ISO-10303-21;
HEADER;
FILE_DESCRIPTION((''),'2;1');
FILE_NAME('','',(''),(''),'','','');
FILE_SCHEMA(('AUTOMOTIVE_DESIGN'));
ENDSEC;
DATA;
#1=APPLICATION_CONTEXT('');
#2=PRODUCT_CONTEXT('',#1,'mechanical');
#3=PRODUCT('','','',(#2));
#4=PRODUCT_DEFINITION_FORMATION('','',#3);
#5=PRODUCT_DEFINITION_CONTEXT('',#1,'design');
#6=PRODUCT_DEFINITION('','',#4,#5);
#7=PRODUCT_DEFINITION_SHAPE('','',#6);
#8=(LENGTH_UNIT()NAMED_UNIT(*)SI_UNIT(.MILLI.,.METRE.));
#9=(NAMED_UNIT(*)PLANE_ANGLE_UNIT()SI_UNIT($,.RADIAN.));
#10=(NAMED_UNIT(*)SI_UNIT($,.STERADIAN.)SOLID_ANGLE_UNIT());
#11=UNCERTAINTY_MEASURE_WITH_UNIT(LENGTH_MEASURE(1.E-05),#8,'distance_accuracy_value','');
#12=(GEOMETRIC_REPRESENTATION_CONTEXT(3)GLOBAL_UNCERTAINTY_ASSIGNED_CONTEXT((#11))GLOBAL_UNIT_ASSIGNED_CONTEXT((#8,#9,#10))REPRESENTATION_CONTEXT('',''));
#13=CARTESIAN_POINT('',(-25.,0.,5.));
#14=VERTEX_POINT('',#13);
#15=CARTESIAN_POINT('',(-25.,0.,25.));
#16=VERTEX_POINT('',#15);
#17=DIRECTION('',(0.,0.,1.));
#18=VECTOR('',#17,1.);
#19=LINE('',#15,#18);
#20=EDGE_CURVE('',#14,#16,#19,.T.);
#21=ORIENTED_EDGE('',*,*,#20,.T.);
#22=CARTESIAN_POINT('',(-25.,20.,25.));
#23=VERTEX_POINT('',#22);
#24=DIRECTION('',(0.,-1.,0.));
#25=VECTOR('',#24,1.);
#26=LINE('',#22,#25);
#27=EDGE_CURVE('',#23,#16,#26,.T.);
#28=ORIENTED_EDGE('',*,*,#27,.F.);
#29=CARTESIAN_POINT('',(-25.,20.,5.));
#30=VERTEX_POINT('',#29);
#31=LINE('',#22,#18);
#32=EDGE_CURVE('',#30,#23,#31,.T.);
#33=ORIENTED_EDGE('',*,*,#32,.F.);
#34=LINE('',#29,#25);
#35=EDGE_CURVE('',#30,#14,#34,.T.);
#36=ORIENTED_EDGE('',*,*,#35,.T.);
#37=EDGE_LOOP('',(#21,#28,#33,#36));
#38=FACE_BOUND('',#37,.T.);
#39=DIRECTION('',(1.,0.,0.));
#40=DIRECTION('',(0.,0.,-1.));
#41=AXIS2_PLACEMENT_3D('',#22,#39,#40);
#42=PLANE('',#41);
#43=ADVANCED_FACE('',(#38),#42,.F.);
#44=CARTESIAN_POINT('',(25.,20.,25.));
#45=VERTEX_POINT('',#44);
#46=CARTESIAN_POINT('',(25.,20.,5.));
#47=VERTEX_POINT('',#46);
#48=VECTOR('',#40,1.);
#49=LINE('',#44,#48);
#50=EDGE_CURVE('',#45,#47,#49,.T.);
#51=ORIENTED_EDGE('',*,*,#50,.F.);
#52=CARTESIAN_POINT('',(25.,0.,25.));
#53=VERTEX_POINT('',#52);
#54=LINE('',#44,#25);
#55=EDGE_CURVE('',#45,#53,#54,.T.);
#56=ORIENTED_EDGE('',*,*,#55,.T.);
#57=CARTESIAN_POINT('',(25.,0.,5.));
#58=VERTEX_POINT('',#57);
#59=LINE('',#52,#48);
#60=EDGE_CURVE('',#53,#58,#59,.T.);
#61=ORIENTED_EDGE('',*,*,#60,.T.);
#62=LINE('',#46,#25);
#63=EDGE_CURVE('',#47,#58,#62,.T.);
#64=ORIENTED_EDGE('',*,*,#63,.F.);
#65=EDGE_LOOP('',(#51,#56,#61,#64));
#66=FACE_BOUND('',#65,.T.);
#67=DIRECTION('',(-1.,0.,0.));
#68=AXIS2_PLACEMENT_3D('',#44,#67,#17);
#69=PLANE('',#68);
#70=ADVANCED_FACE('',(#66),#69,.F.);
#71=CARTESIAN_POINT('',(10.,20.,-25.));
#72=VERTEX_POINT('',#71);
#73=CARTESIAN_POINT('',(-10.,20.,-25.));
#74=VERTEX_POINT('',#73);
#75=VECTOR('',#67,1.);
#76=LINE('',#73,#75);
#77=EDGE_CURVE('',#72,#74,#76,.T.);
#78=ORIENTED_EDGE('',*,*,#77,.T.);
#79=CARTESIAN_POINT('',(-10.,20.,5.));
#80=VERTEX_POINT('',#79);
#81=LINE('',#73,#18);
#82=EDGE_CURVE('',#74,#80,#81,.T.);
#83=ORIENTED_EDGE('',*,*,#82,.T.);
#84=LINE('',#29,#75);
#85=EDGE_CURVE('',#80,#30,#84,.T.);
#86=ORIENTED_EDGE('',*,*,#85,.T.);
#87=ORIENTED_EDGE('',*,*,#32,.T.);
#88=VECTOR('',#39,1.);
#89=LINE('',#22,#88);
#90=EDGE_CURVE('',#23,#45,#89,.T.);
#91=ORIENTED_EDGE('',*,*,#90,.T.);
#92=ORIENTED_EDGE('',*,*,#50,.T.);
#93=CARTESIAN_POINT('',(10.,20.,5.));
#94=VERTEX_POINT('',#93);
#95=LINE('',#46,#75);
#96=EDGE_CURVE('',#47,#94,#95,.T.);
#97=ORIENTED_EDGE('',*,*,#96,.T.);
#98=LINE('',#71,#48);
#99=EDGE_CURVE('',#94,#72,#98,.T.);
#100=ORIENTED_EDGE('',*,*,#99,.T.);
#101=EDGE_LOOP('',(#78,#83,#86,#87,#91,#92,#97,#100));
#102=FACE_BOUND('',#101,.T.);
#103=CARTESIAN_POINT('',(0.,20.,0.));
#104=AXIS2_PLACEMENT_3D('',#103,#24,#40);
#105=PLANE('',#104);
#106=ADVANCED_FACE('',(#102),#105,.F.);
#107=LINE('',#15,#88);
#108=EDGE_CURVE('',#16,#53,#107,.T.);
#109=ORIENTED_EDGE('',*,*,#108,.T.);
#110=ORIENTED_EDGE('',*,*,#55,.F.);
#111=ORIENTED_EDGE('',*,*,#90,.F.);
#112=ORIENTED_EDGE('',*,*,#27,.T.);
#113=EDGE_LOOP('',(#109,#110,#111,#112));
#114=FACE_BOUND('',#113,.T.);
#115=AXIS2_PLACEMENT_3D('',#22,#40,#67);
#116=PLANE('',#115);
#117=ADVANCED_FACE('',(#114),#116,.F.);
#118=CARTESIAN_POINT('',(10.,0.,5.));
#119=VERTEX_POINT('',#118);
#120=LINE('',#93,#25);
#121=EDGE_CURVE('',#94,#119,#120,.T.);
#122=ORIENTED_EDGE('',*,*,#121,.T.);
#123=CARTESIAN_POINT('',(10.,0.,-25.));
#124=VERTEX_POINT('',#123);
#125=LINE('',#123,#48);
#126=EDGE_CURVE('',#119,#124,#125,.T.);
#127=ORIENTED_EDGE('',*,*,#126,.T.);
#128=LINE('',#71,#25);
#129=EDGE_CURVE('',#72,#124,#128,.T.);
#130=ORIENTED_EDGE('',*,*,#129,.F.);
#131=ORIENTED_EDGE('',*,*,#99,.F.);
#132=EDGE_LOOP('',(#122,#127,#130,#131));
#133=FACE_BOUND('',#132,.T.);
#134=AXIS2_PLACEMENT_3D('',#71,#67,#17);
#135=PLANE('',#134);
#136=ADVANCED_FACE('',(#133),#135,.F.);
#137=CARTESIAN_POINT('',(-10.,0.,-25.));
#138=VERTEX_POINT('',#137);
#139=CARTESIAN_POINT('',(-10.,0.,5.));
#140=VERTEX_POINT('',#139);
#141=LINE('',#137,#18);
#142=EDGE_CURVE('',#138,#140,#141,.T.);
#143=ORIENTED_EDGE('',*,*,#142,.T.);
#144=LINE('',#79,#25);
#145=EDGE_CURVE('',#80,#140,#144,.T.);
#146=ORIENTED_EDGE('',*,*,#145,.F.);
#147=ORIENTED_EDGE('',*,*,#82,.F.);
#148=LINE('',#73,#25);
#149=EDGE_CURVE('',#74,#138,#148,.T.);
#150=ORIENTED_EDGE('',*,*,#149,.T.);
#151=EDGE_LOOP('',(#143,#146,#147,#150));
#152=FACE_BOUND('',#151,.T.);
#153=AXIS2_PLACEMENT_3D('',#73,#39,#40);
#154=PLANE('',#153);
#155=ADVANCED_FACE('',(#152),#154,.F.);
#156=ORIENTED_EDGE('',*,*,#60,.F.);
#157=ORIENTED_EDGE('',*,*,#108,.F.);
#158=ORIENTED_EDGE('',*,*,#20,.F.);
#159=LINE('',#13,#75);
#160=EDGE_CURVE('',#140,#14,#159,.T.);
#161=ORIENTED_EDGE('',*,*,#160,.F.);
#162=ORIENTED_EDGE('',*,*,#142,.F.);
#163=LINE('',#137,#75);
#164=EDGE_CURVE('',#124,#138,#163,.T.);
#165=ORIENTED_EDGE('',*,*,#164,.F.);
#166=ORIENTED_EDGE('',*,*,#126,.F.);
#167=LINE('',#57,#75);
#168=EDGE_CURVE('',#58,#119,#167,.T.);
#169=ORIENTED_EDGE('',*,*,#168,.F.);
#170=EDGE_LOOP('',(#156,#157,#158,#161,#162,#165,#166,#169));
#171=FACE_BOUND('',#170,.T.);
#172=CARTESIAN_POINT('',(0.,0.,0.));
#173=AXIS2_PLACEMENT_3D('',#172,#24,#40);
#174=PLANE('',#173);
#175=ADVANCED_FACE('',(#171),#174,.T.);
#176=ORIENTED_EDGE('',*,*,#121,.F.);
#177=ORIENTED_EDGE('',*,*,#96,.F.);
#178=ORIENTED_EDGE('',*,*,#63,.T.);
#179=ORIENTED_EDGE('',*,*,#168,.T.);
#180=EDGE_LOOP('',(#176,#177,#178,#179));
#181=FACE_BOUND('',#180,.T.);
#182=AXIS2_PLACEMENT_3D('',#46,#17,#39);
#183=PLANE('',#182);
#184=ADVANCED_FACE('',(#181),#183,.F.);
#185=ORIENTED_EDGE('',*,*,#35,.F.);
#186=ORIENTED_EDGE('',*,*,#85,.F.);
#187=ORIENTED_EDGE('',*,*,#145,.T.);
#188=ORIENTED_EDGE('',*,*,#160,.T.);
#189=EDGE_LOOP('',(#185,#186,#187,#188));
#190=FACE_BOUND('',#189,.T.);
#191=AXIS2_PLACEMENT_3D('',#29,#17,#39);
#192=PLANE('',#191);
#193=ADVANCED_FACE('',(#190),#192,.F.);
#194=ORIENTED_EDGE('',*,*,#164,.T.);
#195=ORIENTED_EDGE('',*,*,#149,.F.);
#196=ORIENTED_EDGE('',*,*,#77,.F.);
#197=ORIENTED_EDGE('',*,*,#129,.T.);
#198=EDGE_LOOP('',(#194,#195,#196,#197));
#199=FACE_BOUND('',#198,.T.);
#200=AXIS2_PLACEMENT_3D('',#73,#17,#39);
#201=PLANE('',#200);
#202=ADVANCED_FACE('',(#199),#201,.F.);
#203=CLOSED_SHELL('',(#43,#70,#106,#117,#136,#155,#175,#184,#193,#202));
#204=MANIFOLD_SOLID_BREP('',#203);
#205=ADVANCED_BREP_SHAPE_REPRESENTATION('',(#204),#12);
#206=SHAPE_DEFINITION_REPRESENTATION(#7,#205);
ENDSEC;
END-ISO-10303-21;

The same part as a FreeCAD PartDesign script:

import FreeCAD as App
import Part
import Sketcher


def add_polygon(sketch, points):
    """Adds a closed chain of lines whose ends are joined by coincident constraints."""
    first, n = sketch.GeometryCount, len(points)
    for a, b in zip(points, points[1:] + points[:1]):
        sketch.addGeometry(Part.LineSegment(App.Vector(*a, 0), App.Vector(*b, 0)), False)
    for i in range(n):
        sketch.addConstraint(Sketcher.Constraint("Coincident", first + i, 2, first + (i + 1) % n, 1))

doc = App.newDocument("Part")
body = doc.addObject("PartDesign::Body", "Body")

# Sketch on XZ plane
sketch1 = body.newObject("Sketcher::SketchObject", "Sketch")
sketch1.AttachmentSupport = (doc.getObject("XZ_Plane"), [""])
sketch1.MapMode = "FlatFace"
add_polygon(sketch1, [(-25, 25), (25, 25), (25, 5), (10, 5), (10, -25), (-10, -25), (-10, 5), (-25, 5)])  # lines 0-7
sketch1.addConstraint(Sketcher.Constraint("Horizontal", 0))
sketch1.addConstraint(Sketcher.Constraint("Vertical", 1))
sketch1.addConstraint(Sketcher.Constraint("Horizontal", 2))
sketch1.addConstraint(Sketcher.Constraint("Vertical", 3))
sketch1.addConstraint(Sketcher.Constraint("Horizontal", 4))
sketch1.addConstraint(Sketcher.Constraint("Vertical", 5))
sketch1.addConstraint(Sketcher.Constraint("Horizontal", 6))
sketch1.addConstraint(Sketcher.Constraint("Vertical", 7))
sketch1.addConstraint(Sketcher.Constraint("Symmetric", 2, 2, 5, 2, -2))
sketch1.addConstraint(Sketcher.Constraint("Equal", 2, 6))
sketch1.addConstraint(Sketcher.Constraint("Equal", 4, 1))
sketch1.addConstraint(Sketcher.Constraint("DistanceX", 0, 1, 0, 2, 50.0))
sketch1.addConstraint(Sketcher.Constraint("DistanceX", 2, 2, 2, 1, 15.0))
sketch1.addConstraint(Sketcher.Constraint("DistanceY", 3, 2, 3, 1, 30.0))
sketch1.addConstraint(Sketcher.Constraint("DistanceY", -1, 1, 0, 2, 25.0))
pad1 = body.newObject("PartDesign::Pad", "Pad")
pad1.Profile = sketch1
pad1.Length = 20
pad1.Reversed = True

doc.recompute()
